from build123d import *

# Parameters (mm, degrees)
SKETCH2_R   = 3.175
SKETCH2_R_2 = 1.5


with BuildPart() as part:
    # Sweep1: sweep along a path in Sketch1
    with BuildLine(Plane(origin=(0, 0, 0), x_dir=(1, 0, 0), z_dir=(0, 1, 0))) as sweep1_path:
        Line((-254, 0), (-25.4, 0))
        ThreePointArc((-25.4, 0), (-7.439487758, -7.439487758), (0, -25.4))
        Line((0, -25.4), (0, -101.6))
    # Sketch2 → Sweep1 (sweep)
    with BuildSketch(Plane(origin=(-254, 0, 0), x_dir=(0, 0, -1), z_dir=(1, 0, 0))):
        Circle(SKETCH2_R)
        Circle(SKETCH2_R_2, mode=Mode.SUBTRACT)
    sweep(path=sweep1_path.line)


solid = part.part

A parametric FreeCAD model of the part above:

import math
import FreeCAD as App
import Part
import Sketcher

V = App.Vector
Q = App.Units.Quantity

doc = App.newDocument("Part")
params = doc.addObject("Spreadsheet::Sheet", "Params")
for row, (alias, value) in enumerate([
    ("sketch1_diameter", "0.25 in"),
    ("sketch2_radius", "1 in"),
    ("sketch2_width", "9 in"),
    ("sketch2_height", "3 in"),
], start=1):
    params.set(f"A{row}", alias)
    params.set(f"B{row}", "=" + value)
    params.setAlias(f"B{row}", alias)

body = doc.addObject("PartDesign::Body", "Body")

# Sketch on YZ plane
sketch1 = body.newObject("Sketcher::SketchObject", "Sketch")
sketch1.AttachmentSupport = (doc.getObject("YZ_Plane"), [""])
sketch1.MapMode = "FlatFace"
sketch1.AttachmentOffset = App.Placement(V(0, 0, -10 * 25.4), App.Rotation())
sketch1.addGeometry(Part.Circle(V(0, 0, 0), V(0, 0, 1), 3.175), False)
sketch1.addGeometry(Part.Circle(V(0, 0, 0), V(0, 0, 1), 1.5), False)
sketch1.addConstraint(Sketcher.Constraint("Coincident", 0, 3, -1, 1))
sketch1.addConstraint(Sketcher.Constraint("Coincident", 1, 3, -1, 1))
sketch1.addConstraint(Sketcher.Constraint("Diameter", 0, Q("0.25 in")))
sketch1.addConstraint(Sketcher.Constraint("Diameter", 1, Q("3 mm")))
sketch1.setExpression("Constraints[2]", "Params.sketch1_diameter")

# Sketch on XZ plane
sketch2 = body.newObject("Sketcher::SketchObject", "Sketch001")
sketch2.AttachmentSupport = (doc.getObject("XZ_Plane"), [""])
sketch2.MapMode = "FlatFace"
sketch2.addGeometry(Part.LineSegment(V(-254, 0, 0), V(-25.4, 0, 0)), False)
sketch2.addGeometry(Part.ArcOfCircle(Part.Circle(V(-25.4, 25.4, 0), V(0, 0, 1), 25.4), math.radians(-90), math.radians(0)), False)
sketch2.addGeometry(Part.LineSegment(V(0, 25.4, 0), V(0, 101.6, 0)), False)
sketch2.addConstraint(Sketcher.Constraint("Tangent", 0, 2, 1, 1))
sketch2.addConstraint(Sketcher.Constraint("Tangent", 1, 2, 2, 1))
sketch2.addConstraint(Sketcher.Constraint("Horizontal", 0))
sketch2.addConstraint(Sketcher.Constraint("Vertical", 2))
sketch2.addConstraint(Sketcher.Constraint("PointOnObject", 0, 1, -1))
sketch2.addConstraint(Sketcher.Constraint("PointOnObject", 1, 2, -2))
sketch2.addConstraint(Sketcher.Constraint("Radius", 1, Q("1 in")))
sketch2.addConstraint(Sketcher.Constraint("DistanceX", 0, 1, 0, 2, Q("9 in")))
sketch2.addConstraint(Sketcher.Constraint("DistanceY", 2, 1, 2, 2, Q("3 in")))
sketch2.setExpression("Constraints[6]", "Params.sketch2_radius")
sketch2.setExpression("Constraints[7]", "Params.sketch2_width")
sketch2.setExpression("Constraints[8]", "Params.sketch2_height")
doc.recompute()

additivepipe = body.newObject("PartDesign::AdditivePipe", "AdditivePipe")
additivepipe.Profile = sketch1
additivepipe.Spine = (sketch2, ["Edge1", "Edge2", "Edge3"])

doc.recompute()
